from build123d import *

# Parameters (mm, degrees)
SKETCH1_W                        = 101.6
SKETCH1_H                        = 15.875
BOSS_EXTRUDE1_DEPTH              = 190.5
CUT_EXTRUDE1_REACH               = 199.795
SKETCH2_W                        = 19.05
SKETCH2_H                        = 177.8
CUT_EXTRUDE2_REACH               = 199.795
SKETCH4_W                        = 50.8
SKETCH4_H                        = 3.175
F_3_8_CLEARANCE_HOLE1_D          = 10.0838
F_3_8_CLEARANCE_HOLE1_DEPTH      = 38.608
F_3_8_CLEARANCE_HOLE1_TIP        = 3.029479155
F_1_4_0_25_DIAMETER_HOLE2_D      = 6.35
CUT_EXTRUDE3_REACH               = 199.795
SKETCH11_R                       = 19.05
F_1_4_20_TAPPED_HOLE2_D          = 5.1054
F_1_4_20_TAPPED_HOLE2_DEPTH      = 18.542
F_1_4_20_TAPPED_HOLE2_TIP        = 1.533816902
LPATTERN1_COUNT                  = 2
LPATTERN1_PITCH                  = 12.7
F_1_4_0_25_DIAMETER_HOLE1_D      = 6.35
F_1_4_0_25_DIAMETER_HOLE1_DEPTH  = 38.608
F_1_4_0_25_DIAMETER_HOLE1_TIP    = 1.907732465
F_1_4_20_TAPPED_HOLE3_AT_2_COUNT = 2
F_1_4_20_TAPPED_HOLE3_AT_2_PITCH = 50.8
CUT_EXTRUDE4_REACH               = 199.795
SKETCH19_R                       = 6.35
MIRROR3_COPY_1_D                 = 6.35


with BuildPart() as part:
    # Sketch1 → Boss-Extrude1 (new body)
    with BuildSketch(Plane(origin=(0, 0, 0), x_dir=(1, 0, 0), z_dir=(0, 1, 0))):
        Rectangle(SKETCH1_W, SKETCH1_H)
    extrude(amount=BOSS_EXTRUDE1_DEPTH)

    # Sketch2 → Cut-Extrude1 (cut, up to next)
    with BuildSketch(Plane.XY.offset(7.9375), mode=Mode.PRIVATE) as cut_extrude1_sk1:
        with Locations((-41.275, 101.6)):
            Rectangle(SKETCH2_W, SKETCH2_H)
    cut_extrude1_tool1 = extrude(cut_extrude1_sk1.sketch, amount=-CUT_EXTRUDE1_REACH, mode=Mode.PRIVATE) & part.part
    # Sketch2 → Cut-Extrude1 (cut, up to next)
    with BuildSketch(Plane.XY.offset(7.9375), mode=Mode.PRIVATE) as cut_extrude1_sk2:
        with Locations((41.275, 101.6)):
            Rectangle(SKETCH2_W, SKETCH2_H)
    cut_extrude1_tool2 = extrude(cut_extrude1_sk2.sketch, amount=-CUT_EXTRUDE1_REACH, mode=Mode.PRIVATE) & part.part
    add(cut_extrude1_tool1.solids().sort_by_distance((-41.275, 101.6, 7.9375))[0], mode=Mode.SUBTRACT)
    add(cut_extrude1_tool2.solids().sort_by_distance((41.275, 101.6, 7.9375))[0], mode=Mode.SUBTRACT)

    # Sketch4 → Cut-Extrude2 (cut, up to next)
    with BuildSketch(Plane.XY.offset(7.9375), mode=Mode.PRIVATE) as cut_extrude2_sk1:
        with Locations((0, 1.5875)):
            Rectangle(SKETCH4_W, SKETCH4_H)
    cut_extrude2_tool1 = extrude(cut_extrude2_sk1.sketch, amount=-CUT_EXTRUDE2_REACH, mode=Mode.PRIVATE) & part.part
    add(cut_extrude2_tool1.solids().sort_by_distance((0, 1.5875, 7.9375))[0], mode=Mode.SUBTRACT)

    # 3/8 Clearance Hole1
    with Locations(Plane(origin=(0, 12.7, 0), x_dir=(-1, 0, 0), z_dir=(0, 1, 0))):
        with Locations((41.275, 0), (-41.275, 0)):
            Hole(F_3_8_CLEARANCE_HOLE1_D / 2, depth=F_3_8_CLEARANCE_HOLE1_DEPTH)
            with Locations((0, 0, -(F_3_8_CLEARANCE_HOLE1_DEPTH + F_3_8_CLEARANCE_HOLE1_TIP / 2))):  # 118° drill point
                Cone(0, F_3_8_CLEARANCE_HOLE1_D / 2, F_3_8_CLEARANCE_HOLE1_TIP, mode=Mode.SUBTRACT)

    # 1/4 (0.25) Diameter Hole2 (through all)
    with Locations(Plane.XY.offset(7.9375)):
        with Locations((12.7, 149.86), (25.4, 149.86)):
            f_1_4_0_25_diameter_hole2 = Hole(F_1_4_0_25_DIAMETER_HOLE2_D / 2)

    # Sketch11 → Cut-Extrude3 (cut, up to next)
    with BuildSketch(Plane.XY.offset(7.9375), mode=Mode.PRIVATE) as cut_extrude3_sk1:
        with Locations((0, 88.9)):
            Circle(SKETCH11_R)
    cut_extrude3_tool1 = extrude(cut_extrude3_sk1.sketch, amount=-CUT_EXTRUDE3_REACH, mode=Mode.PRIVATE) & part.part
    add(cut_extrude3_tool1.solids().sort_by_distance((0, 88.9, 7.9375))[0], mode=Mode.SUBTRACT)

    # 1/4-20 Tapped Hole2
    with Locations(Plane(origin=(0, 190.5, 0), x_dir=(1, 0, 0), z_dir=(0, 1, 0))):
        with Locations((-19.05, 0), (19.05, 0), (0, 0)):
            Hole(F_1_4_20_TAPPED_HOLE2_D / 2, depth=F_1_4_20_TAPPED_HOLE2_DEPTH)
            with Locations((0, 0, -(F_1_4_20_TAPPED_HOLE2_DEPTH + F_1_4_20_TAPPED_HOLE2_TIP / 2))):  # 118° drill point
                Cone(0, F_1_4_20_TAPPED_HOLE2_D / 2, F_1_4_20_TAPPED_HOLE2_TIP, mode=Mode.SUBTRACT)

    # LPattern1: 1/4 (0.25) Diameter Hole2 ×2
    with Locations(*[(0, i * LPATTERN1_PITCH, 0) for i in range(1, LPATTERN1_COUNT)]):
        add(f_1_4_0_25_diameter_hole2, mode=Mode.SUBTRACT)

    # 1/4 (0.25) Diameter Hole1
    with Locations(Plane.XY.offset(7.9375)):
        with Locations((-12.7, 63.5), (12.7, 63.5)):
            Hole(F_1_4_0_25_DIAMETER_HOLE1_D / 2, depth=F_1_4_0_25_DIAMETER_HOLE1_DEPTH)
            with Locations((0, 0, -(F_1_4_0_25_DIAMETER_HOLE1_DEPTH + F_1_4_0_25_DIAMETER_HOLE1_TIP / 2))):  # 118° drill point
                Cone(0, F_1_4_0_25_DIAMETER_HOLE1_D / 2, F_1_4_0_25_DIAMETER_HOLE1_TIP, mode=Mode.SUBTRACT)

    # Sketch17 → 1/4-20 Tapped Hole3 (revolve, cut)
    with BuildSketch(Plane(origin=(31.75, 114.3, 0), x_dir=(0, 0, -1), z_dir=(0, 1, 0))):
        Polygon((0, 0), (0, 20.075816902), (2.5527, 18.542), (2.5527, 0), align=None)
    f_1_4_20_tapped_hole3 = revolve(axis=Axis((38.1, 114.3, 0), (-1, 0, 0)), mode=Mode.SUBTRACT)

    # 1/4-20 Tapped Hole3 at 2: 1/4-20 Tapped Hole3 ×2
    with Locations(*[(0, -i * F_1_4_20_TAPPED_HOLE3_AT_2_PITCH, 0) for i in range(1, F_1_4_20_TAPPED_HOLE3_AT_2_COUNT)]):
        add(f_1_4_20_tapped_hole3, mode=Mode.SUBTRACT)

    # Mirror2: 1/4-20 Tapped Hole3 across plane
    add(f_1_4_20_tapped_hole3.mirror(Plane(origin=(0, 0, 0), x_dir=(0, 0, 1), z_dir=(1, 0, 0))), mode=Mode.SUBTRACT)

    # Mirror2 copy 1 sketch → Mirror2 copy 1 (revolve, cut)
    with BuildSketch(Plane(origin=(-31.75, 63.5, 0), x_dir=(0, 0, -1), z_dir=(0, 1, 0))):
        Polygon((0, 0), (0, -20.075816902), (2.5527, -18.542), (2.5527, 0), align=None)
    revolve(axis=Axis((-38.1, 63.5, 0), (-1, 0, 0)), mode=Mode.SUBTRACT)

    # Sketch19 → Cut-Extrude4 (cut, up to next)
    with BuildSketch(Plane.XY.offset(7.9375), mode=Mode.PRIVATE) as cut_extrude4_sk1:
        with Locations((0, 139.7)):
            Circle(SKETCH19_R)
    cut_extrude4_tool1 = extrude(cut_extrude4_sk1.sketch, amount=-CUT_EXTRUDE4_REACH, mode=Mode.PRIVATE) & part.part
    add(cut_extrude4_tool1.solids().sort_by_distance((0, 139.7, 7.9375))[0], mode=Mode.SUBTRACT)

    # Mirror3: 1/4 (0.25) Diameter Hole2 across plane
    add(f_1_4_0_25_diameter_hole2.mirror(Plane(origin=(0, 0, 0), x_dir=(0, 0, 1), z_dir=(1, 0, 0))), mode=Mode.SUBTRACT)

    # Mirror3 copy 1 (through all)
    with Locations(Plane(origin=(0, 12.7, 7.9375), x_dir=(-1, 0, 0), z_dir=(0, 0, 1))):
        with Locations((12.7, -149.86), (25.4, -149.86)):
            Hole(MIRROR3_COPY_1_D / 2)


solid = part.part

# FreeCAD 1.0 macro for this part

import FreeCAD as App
import Part
import Sketcher
from FreeCAD import Vector
Q = App.Units.Quantity


def add_polygon(sketch, points):
    """Adds a closed chain of lines whose ends are joined by coincident constraints."""
    first, n = sketch.GeometryCount, len(points)
    for a, b in zip(points, points[1:] + points[:1]):
        sketch.addGeometry(Part.LineSegment(App.Vector(*a, 0), App.Vector(*b, 0)), False)
    for i in range(n):
        sketch.addConstraint(Sketcher.Constraint("Coincident", first + i, 2, first + (i + 1) % n, 1))

doc = App.newDocument("Part")
body = doc.addObject("PartDesign::Body", "Body")

sketch1 = doc.addObject("Sketcher::SketchObject", "Sketch")
body.addObject(sketch1)
sketch1.AttachmentSupport = (doc.XZ_Plane, [""])
sketch1.MapMode = "FlatFace"
add_polygon(sketch1, [(-50.8, -7.9375), (-50.8, 7.9375), (50.8, 7.9375), (50.8, -7.9375)])
sketch1.addConstraint([
    Sketcher.Constraint("Vertical", 0),
    Sketcher.Constraint("Horizontal", 1),
    Sketcher.Constraint("Vertical", 2),
    Sketcher.Constraint("Horizontal", 3),
    Sketcher.Constraint("Symmetric", 0, 2, 2, 2, -1, 1),
    Sketcher.Constraint("DistanceX", 1, 1, 1, 2, Q("4 in")),
    Sketcher.Constraint("DistanceY", 0, 1, 0, 2, Q("0.625 in")),
])
pad1 = doc.addObject("PartDesign::Pad", "Pad")
body.addObject(pad1)
pad1.Profile = sketch1
pad1.Length = Q("7.5 in")
pad1.Reversed = True

sketch2 = doc.addObject("Sketcher::SketchObject", "Sketch001")
body.addObject(sketch2)
sketch2.AttachmentSupport = (doc.XY_Plane, [""])
sketch2.MapMode = "FlatFace"
sketch2.AttachmentOffset = App.Placement(Vector(0, 0, 0.3125 * 25.4), App.Rotation())
add_polygon(sketch2, [(-50.8, 190.5), (-50.8, 12.7), (-31.75, 12.7), (-31.75, 190.5)])
sketch2.addConstraint([
    Sketcher.Constraint("Vertical", 0),
    Sketcher.Constraint("Horizontal", 1),
    Sketcher.Constraint("Vertical", 2),
    Sketcher.Constraint("Horizontal", 3),
    Sketcher.Constraint("DistanceY", 0, 2, 0, 1, Q("7 in")),
    Sketcher.Constraint("DistanceX", 0, 2, -1, 1, Q("2 in")),
    Sketcher.Constraint("DistanceX", 1, 1, 1, 2, Q("0.75 in")),
    Sketcher.Constraint("DistanceY", -1, 1, 0, 2, Q("0.5 in")),
])
pocket1 = doc.addObject("PartDesign::Pocket", "Pocket")
body.addObject(pocket1)
pocket1.Profile = sketch2
pocket1.Type = "UpToFirst"

sketch3 = doc.addObject("Sketcher::SketchObject", "Sketch002")
body.addObject(sketch3)
sketch3.AttachmentSupport = (doc.XY_Plane, [""])
sketch3.MapMode = "FlatFace"
sketch3.AttachmentOffset = App.Placement(Vector(0, 0, 0.3125 * 25.4), App.Rotation())
add_polygon(sketch3, [(31.75, 190.5), (31.75, 12.7), (50.8, 12.7), (50.8, 190.5)])
sketch3.addConstraint([
    Sketcher.Constraint("Vertical", 0),
    Sketcher.Constraint("Horizontal", 1),
    Sketcher.Constraint("Vertical", 2),
    Sketcher.Constraint("Horizontal", 3),
    Sketcher.Constraint("DistanceY", 0, 2, 0, 1, Q("7 in")),
    Sketcher.Constraint("DistanceX", -1, 1, 1, 2, Q("2 in")),
    Sketcher.Constraint("DistanceX", 1, 1, 1, 2, Q("0.75 in")),
    Sketcher.Constraint("DistanceY", -1, 1, 0, 2, Q("0.5 in")),
])
pocket2 = doc.addObject("PartDesign::Pocket", "Pocket001")
body.addObject(pocket2)
pocket2.Profile = sketch3
pocket2.Type = "UpToFirst"

sketch4 = doc.addObject("Sketcher::SketchObject", "Sketch003")
body.addObject(sketch4)
sketch4.AttachmentSupport = (doc.XY_Plane, [""])
sketch4.MapMode = "FlatFace"
sketch4.AttachmentOffset = App.Placement(Vector(0, 0, 0.3125 * 25.4), App.Rotation())
add_polygon(sketch4, [(-25.4, 3.175), (-25.4, 0), (25.4, 0), (25.4, 3.175)])
sketch4.addConstraint([
    Sketcher.Constraint("Vertical", 0),
    Sketcher.Constraint("Horizontal", 1),
    Sketcher.Constraint("Vertical", 2),
    Sketcher.Constraint("Horizontal", 3),
    Sketcher.Constraint("Symmetric", 0, 2, 1, 2, -1, 1),
    Sketcher.Constraint("DistanceX", 1, 1, 1, 2, Q("2 in")),
    Sketcher.Constraint("DistanceY", 0, 2, 0, 1, Q("0.125 in")),
])
pocket3 = doc.addObject("PartDesign::Pocket", "Pocket002")
body.addObject(pocket3)
pocket3.Profile = sketch4
pocket3.Type = "UpToFirst"

sketch5 = doc.addObject("Sketcher::SketchObject", "Sketch004")
body.addObject(sketch5)
sketch5.AttachmentSupport = (doc.XZ_Plane, [""])
sketch5.MapMode = "FlatFace"
sketch5.AttachmentOffset = App.Placement(Vector(0, 0, -0.5 * 25.4), App.Rotation())
sketch5.addGeometry([
    Part.Circle(Vector(-41.275, 0, 0), Vector(0, 0, 1), 5.0419),
    Part.Circle(Vector(41.275, 0, 0), Vector(0, 0, 1), 5.0419),
], False)
sketch5.addConstraint([
    Sketcher.Constraint("Equal", 0, 1),
    Sketcher.Constraint("Symmetric", 0, 3, 1, 3, -1, 1),
    Sketcher.Constraint("PointOnObject", 0, 3, -1),
    Sketcher.Constraint("Diameter", 0, Q("0.397 in")),
    Sketcher.Constraint("DistanceX", 0, 3, 1, 3, Q("3.25 in")),
])
doc.recompute()
hole = doc.addObject("PartDesign::Hole", "Hole")
body.addObject(hole)
hole.Profile = sketch5
hole.ThreadType = "None"
hole.Diameter = Q("0.397 in")
hole.DepthType = "Dimension"
hole.Depth = Q("1.52 in")
hole.DrillPoint = "Angled"
hole.DrillPointAngle = 118
hole.Reversed = True

sketch6 = doc.addObject("Sketcher::SketchObject", "Sketch005")
body.addObject(sketch6)
sketch6.AttachmentSupport = (doc.XY_Plane, [""])
sketch6.MapMode = "FlatFace"
sketch6.AttachmentOffset = App.Placement(Vector(0, 0, 0.3125 * 25.4), App.Rotation())
sketch6.addGeometry([
    Part.Circle(Vector(12.7, 149.86, 0), Vector(0, 0, 1), 3.175),
    Part.Circle(Vector(25.4, 149.86, 0), Vector(0, 0, 1), 3.175),
], False)
sketch6.addConstraint([
    Sketcher.Constraint("Equal", 0, 1),
    Sketcher.Constraint("Horizontal", 0, 3, 1, 3),
    Sketcher.Constraint("Diameter", 0, Q("0.25 in")),
    Sketcher.Constraint("DistanceX", -1, 1, 1, 3, Q("1 in")),
    Sketcher.Constraint("DistanceX", -1, 1, 0, 3, Q("0.5 in")),
    Sketcher.Constraint("DistanceY", -1, 1, 0, 3, Q("5.9 in")),
])
doc.recompute()
hole2 = doc.addObject("PartDesign::Hole", "Hole001")
body.addObject(hole2)
hole2.Profile = sketch6
hole2.ThreadType = "None"
hole2.Diameter = Q("0.25 in")
hole2.DepthType = "ThroughAll"

sketch7 = doc.addObject("Sketcher::SketchObject", "Sketch006")
body.addObject(sketch7)
sketch7.AttachmentSupport = (doc.XY_Plane, [""])
sketch7.MapMode = "FlatFace"
sketch7.AttachmentOffset = App.Placement(Vector(0, 0, 0.3125 * 25.4), App.Rotation())
sketch7.addGeometry(Part.Circle(Vector(0, 88.9, 0), Vector(0, 0, 1), 19.05), False)
sketch7.addConstraint([
    Sketcher.Constraint("PointOnObject", 0, 3, -2),
    Sketcher.Constraint("Diameter", 0, Q("1.5 in")),
    Sketcher.Constraint("DistanceY", -1, 1, 0, 3, Q("3.5 in")),
])
pocket4 = doc.addObject("PartDesign::Pocket", "Pocket003")
body.addObject(pocket4)
pocket4.Profile = sketch7
pocket4.Type = "UpToFirst"

sketch8 = doc.addObject("Sketcher::SketchObject", "Sketch007")
body.addObject(sketch8)
sketch8.AttachmentSupport = (doc.XZ_Plane, [""])
sketch8.MapMode = "FlatFace"
sketch8.AttachmentOffset = App.Placement(Vector(0, 0, -7.5 * 25.4), App.Rotation())
sketch8.addGeometry([
    Part.Circle(Vector(-19.05, 0, 0), Vector(0, 0, 1), 2.5527),
    Part.Circle(Vector(19.05, 0, 0), Vector(0, 0, 1), 2.5527),
    Part.Circle(Vector(0, 0, 0), Vector(0, 0, 1), 2.5527),
], False)
sketch8.addConstraint([
    Sketcher.Constraint("Coincident", 2, 3, -1, 1),
    Sketcher.Constraint("Equal", 0, 1),
    Sketcher.Constraint("Equal", 1, 2),
    Sketcher.Constraint("Symmetric", 0, 3, 1, 3, -1, 1),
    Sketcher.Constraint("PointOnObject", 0, 3, -1),
    Sketcher.Constraint("Diameter", 0, Q("0.201 in")),
    Sketcher.Constraint("DistanceX", 0, 3, 1, 3, Q("1.5 in")),
])
doc.recompute()
hole3 = doc.addObject("PartDesign::Hole", "Hole002")
body.addObject(hole3)
hole3.Profile = sketch8
hole3.ThreadType = "None"
hole3.Diameter = Q("0.201 in")
hole3.DepthType = "Dimension"
hole3.Depth = Q("0.73 in")
hole3.DrillPoint = "Angled"
hole3.DrillPointAngle = 118
hole3.Reversed = True
doc.recompute()

linearpattern = doc.addObject("PartDesign::LinearPattern", "LinearPattern")
body.addObject(linearpattern)
linearpattern.Originals = [hole2]
linearpattern.Direction = (doc.Y_Axis, [""])
linearpattern.Mode = "offset"
linearpattern.Offset = Q("0.5 in")
linearpattern.Occurrences = 2
body.Tip = linearpattern

sketch9 = doc.addObject("Sketcher::SketchObject", "Sketch008")
body.addObject(sketch9)
sketch9.AttachmentSupport = (doc.XY_Plane, [""])
sketch9.MapMode = "FlatFace"
sketch9.AttachmentOffset = App.Placement(Vector(0, 0, 0.3125 * 25.4), App.Rotation())
sketch9.addGeometry([
    Part.Circle(Vector(-12.7, 63.5, 0), Vector(0, 0, 1), 3.175),
    Part.Circle(Vector(12.7, 63.5, 0), Vector(0, 0, 1), 3.175),
], False)
sketch9.addConstraint([
    Sketcher.Constraint("Equal", 0, 1),
    Sketcher.Constraint("Symmetric", 0, 3, 1, 3, -2),
    Sketcher.Constraint("Diameter", 0, Q("0.25 in")),
    Sketcher.Constraint("DistanceX", 0, 3, 1, 3, Q("1 in")),
    Sketcher.Constraint("DistanceY", -1, 1, 0, 3, Q("2.5 in")),
])
doc.recompute()
hole4 = doc.addObject("PartDesign::Hole", "Hole003")
body.addObject(hole4)
hole4.Profile = sketch9
hole4.ThreadType = "None"
hole4.Diameter = Q("0.25 in")
hole4.DepthType = "Dimension"
hole4.Depth = Q("1.52 in")
hole4.DrillPoint = "Angled"
hole4.DrillPointAngle = 118

sketch10 = doc.addObject("Sketcher::SketchObject", "Sketch009")
body.addObject(sketch10)
sketch10.AttachmentSupport = (doc.XZ_Plane, [""])
sketch10.MapMode = "FlatFace"
sketch10.AttachmentOffset = App.Placement(Vector(0, 0, -4.5 * 25.4), App.Rotation())
add_polygon(sketch10, [(11.674183, 0), (31.75, 0), (31.75, -2.5527), (13.208, -2.5527)])
sketch10.addConstraint([
    Sketcher.Constraint("Horizontal", 0),
    Sketcher.Constraint("Vertical", 1),
    Sketcher.Constraint("Horizontal", 2),
    Sketcher.Constraint("PointOnObject", 0, 2, -1),
    Sketcher.Constraint("Angle", 3, Q("121 deg")),
    Sketcher.Constraint("DistanceX", 2, 2, 2, 1, Q("0.73 in")),
    Sketcher.Constraint("DistanceX", -1, 1, 0, 2, Q("1.25 in")),
    Sketcher.Constraint("DistanceY", 1, 2, 1, 1, Q("0.1005 in")),
])
groove = doc.addObject("PartDesign::Groove", "Groove")
body.addObject(groove)
groove.Profile = sketch10
groove.ReferenceAxis = (sketch10, ["H_Axis"])
groove.Angle = 360
doc.recompute()

linearpattern2 = doc.addObject("PartDesign::LinearPattern", "LinearPattern001")
body.addObject(linearpattern2)
linearpattern2.Originals = [groove]
linearpattern2.Direction = (doc.Y_Axis, [""])
linearpattern2.Mode = "offset"
linearpattern2.Offset = Q("2 in")
linearpattern2.Occurrences = 2
linearpattern2.Reversed = True
body.Tip = linearpattern2
doc.recompute()

mirrored = doc.addObject("PartDesign::Mirrored", "Mirrored")
body.addObject(mirrored)
mirrored.Originals = [groove]
mirrored.MirrorPlane = (doc.YZ_Plane, [""])
body.Tip = mirrored

sketch11 = doc.addObject("Sketcher::SketchObject", "Sketch010")
body.addObject(sketch11)
sketch11.AttachmentSupport = (doc.XZ_Plane, [""])
sketch11.MapMode = "FlatFace"
sketch11.AttachmentOffset = App.Placement(Vector(0, 0, -2.5 * 25.4), App.Rotation())
add_polygon(sketch11, [(-31.75, 0), (-11.674183, 0), (-13.208, -2.5527), (-31.75, -2.5527)])
sketch11.addConstraint([
    Sketcher.Constraint("Horizontal", 0),
    Sketcher.Constraint("Horizontal", 2),
    Sketcher.Constraint("Vertical", 3),
    Sketcher.Constraint("PointOnObject", 0, 2, -1),
    Sketcher.Constraint("Angle", 1, Q("-121 deg")),
    Sketcher.Constraint("DistanceX", 2, 2, 2, 1, Q("0.73 in")),
    Sketcher.Constraint("DistanceX", 1, 2, -1, 1, Q("0.52 in")),
    Sketcher.Constraint("DistanceY", 3, 1, 3, 2, Q("0.1005 in")),
])
groove2 = doc.addObject("PartDesign::Groove", "Groove001")
body.addObject(groove2)
groove2.Profile = sketch11
groove2.ReferenceAxis = (sketch11, ["H_Axis"])
groove2.Angle = 360

sketch12 = doc.addObject("Sketcher::SketchObject", "Sketch011")
body.addObject(sketch12)
sketch12.AttachmentSupport = (doc.XY_Plane, [""])
sketch12.MapMode = "FlatFace"
sketch12.AttachmentOffset = App.Placement(Vector(0, 0, 0.3125 * 25.4), App.Rotation())
sketch12.addGeometry(Part.Circle(Vector(0, 139.7, 0), Vector(0, 0, 1), 6.35), False)
sketch12.addConstraint([
    Sketcher.Constraint("PointOnObject", 0, 3, -2),
    Sketcher.Constraint("Diameter", 0, Q("0.5 in")),
    Sketcher.Constraint("DistanceY", -1, 1, 0, 3, Q("5.5 in")),
])
pocket5 = doc.addObject("PartDesign::Pocket", "Pocket004")
body.addObject(pocket5)
pocket5.Profile = sketch12
pocket5.Type = "UpToFirst"
doc.recompute()

mirrored2 = doc.addObject("PartDesign::Mirrored", "Mirrored001")
body.addObject(mirrored2)
mirrored2.Originals = [hole2]
mirrored2.MirrorPlane = (doc.YZ_Plane, [""])
body.Tip = mirrored2

sketch13 = doc.addObject("Sketcher::SketchObject", "Sketch012")
body.addObject(sketch13)
sketch13.AttachmentSupport = (doc.XY_Plane, [""])
sketch13.MapMode = "FlatFace"
sketch13.AttachmentOffset = App.Placement(Vector(0, 0, 0.3125 * 25.4), App.Rotation())
sketch13.addGeometry([
    Part.Circle(Vector(-12.7, 162.56, 0), Vector(0, 0, 1), 3.175),
    Part.Circle(Vector(-25.4, 162.56, 0), Vector(0, 0, 1), 3.175),
], False)
sketch13.addConstraint([
    Sketcher.Constraint("Equal", 0, 1),
    Sketcher.Constraint("Horizontal", 0, 3, 1, 3),
    Sketcher.Constraint("Diameter", 0, Q("0.25 in")),
    Sketcher.Constraint("DistanceX", 1, 3, -1, 1, Q("1 in")),
    Sketcher.Constraint("DistanceX", 0, 3, -1, 1, Q("0.5 in")),
    Sketcher.Constraint("DistanceY", -1, 1, 0, 3, Q("6.4 in")),
])
doc.recompute()
hole5 = doc.addObject("PartDesign::Hole", "Hole004")
body.addObject(hole5)
hole5.Profile = sketch13
hole5.ThreadType = "None"
hole5.Diameter = Q("0.25 in")
hole5.DepthType = "ThroughAll"

doc.recompute()
